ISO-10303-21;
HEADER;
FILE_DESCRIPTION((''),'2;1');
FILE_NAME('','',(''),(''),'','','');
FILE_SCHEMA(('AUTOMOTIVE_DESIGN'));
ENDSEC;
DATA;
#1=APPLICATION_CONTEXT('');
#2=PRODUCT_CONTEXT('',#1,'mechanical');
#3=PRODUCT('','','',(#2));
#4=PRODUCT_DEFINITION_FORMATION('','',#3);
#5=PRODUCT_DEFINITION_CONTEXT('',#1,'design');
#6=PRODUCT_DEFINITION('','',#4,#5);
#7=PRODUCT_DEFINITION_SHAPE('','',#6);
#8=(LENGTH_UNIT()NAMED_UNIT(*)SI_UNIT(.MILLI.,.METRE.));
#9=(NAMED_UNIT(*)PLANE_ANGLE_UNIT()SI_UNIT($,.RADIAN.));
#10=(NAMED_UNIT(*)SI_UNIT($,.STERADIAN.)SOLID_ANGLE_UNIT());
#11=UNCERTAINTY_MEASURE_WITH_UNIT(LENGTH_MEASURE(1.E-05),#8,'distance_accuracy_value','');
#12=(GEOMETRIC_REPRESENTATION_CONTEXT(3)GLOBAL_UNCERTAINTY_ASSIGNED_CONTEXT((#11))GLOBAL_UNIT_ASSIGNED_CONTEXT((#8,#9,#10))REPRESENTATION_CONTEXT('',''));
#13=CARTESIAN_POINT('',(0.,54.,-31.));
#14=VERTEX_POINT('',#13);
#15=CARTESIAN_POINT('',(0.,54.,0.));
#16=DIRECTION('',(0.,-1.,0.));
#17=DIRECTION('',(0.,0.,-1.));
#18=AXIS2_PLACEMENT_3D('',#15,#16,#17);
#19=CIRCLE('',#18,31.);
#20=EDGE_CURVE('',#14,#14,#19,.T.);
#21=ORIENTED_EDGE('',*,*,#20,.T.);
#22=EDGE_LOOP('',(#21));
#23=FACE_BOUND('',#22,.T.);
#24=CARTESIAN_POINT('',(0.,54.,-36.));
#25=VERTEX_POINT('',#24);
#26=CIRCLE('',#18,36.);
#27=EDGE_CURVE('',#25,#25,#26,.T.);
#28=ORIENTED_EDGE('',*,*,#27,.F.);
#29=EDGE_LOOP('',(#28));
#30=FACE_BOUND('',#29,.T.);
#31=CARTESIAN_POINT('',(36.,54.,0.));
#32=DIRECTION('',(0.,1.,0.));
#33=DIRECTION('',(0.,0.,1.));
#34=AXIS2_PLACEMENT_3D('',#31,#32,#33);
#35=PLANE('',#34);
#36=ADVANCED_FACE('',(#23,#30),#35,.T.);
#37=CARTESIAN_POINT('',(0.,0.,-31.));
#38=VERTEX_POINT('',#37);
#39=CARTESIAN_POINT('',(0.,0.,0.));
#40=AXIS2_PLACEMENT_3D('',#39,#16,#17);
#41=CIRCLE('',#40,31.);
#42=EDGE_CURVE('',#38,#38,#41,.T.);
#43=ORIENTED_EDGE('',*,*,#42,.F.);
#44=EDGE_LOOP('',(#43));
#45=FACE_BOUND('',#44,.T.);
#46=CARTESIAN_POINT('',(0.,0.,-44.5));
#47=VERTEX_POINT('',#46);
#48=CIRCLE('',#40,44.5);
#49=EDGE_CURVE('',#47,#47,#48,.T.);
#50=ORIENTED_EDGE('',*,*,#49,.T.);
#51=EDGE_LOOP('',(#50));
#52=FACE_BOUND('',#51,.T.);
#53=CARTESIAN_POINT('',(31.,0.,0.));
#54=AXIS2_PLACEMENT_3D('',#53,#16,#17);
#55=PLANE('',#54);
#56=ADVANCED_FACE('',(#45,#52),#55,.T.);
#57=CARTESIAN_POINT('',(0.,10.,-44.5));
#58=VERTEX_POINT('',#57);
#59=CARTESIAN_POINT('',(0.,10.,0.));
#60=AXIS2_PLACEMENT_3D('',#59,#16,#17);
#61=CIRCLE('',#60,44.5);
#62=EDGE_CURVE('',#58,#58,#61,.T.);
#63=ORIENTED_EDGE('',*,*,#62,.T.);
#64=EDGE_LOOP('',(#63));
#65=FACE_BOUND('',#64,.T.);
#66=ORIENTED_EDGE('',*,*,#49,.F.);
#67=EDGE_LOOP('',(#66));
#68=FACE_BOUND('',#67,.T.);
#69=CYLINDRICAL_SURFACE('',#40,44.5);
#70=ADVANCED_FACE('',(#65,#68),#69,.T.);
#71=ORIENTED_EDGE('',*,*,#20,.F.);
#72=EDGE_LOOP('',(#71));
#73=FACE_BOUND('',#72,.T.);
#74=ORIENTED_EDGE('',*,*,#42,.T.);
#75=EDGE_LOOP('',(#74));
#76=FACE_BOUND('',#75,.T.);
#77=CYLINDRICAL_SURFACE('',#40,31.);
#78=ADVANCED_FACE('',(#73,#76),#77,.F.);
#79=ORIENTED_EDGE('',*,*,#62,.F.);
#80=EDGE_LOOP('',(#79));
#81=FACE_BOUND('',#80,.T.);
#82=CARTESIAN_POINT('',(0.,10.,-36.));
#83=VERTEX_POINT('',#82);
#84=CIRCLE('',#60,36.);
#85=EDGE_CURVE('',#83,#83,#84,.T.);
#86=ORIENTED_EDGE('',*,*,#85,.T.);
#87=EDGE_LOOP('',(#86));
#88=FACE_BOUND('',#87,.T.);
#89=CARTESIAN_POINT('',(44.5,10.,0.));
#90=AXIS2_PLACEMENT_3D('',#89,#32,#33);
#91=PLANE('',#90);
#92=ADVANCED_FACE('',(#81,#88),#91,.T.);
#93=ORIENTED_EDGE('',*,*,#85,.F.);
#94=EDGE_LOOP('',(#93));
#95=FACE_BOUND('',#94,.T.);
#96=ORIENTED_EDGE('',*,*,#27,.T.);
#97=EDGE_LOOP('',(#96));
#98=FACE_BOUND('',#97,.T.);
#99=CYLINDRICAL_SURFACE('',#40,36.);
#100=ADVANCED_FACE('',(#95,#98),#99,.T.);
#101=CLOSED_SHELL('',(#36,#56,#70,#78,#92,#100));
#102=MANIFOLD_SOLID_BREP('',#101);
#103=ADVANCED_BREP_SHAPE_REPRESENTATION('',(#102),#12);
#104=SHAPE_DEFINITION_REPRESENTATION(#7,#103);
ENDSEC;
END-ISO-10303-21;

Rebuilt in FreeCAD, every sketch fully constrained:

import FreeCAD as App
import Part
import Sketcher

V = App.Vector
Q = App.Units.Quantity

doc = App.newDocument("Part")
params = doc.addObject("Spreadsheet::Sheet", "Params")
for row, (alias, value) in enumerate([
    ("sketch1_width", "5 mm"),
    ("sketch1_height", "10 mm"),
    ("sketch1_height2", "44 mm"),
    ("sketch1_width2", "13.5 mm"),
    ("revolution_angle", "360 deg"),
], start=1):
    params.set(f"A{row}", alias)
    params.set(f"B{row}", "=" + value)
    params.setAlias(f"B{row}", alias)

body = doc.addObject("PartDesign::Body", "Body")

# Sketch on XY plane
sketch1 = body.newObject("Sketcher::SketchObject", "Sketch")
sketch1.AttachmentSupport = (doc.getObject("XY_Plane"), [""])
sketch1.MapMode = "FlatFace"
sketch1.addGeometry([
    Part.LineSegment(V(31, 0, 0), V(44, 0, 0)),  # 0
    Part.LineSegment(V(44, 0, 0), V(44, 10, 0)),  # 1
    Part.LineSegment(V(44, 10, 0), V(36, 10, 0)),  # 2
    Part.LineSegment(V(36, 10, 0), V(36, 54, 0)),  # 3
    Part.LineSegment(V(36, 54, 0), V(31, 54, 0)),  # 4
    Part.LineSegment(V(31, 54, 0), V(31, 0, 0)),  # 5
], False)
sketch1.addConstraint([
    Sketcher.Constraint("Coincident", 0, 2, 1, 1),
    Sketcher.Constraint("Coincident", 1, 2, 2, 1),
    Sketcher.Constraint("Coincident", 2, 2, 3, 1),
    Sketcher.Constraint("Coincident", 3, 2, 4, 1),
    Sketcher.Constraint("Coincident", 4, 2, 5, 1),
    Sketcher.Constraint("Coincident", 5, 2, 0, 1),
    Sketcher.Constraint("Horizontal", 0),
    Sketcher.Constraint("Vertical", 1),
    Sketcher.Constraint("Horizontal", 2),
    Sketcher.Constraint("Vertical", 3),
    Sketcher.Constraint("Horizontal", 4),
    Sketcher.Constraint("Vertical", 5),
    Sketcher.Constraint("PointOnObject", 0, 2, -1),
    Sketcher.Constraint("DistanceX", 4, 2, 4, 1, Q("5 mm")),
    Sketcher.Constraint("DistanceY", 1, 1, 1, 2, Q("10 mm")),
    Sketcher.Constraint("DistanceY", 3, 1, 3, 2, Q("44 mm")),
    Sketcher.Constraint("DistanceX", 0, 1, 0, 2, Q("13.5 mm")),
    Sketcher.Constraint("DistanceX", -1, 1, 2, 2, Q("36 mm")),
])
sketch1.setExpression("Constraints[13]", "Params.sketch1_width")
sketch1.setExpression("Constraints[14]", "Params.sketch1_height")
sketch1.setExpression("Constraints[15]", "Params.sketch1_height2")
sketch1.setExpression("Constraints[16]", "Params.sketch1_width2")
revolution = body.newObject("PartDesign::Revolution", "Revolution")
revolution.Profile = sketch1
revolution.ReferenceAxis = (sketch1, ["V_Axis"])
revolution.setExpression("Angle", "Params.revolution_angle")

doc.recompute()
